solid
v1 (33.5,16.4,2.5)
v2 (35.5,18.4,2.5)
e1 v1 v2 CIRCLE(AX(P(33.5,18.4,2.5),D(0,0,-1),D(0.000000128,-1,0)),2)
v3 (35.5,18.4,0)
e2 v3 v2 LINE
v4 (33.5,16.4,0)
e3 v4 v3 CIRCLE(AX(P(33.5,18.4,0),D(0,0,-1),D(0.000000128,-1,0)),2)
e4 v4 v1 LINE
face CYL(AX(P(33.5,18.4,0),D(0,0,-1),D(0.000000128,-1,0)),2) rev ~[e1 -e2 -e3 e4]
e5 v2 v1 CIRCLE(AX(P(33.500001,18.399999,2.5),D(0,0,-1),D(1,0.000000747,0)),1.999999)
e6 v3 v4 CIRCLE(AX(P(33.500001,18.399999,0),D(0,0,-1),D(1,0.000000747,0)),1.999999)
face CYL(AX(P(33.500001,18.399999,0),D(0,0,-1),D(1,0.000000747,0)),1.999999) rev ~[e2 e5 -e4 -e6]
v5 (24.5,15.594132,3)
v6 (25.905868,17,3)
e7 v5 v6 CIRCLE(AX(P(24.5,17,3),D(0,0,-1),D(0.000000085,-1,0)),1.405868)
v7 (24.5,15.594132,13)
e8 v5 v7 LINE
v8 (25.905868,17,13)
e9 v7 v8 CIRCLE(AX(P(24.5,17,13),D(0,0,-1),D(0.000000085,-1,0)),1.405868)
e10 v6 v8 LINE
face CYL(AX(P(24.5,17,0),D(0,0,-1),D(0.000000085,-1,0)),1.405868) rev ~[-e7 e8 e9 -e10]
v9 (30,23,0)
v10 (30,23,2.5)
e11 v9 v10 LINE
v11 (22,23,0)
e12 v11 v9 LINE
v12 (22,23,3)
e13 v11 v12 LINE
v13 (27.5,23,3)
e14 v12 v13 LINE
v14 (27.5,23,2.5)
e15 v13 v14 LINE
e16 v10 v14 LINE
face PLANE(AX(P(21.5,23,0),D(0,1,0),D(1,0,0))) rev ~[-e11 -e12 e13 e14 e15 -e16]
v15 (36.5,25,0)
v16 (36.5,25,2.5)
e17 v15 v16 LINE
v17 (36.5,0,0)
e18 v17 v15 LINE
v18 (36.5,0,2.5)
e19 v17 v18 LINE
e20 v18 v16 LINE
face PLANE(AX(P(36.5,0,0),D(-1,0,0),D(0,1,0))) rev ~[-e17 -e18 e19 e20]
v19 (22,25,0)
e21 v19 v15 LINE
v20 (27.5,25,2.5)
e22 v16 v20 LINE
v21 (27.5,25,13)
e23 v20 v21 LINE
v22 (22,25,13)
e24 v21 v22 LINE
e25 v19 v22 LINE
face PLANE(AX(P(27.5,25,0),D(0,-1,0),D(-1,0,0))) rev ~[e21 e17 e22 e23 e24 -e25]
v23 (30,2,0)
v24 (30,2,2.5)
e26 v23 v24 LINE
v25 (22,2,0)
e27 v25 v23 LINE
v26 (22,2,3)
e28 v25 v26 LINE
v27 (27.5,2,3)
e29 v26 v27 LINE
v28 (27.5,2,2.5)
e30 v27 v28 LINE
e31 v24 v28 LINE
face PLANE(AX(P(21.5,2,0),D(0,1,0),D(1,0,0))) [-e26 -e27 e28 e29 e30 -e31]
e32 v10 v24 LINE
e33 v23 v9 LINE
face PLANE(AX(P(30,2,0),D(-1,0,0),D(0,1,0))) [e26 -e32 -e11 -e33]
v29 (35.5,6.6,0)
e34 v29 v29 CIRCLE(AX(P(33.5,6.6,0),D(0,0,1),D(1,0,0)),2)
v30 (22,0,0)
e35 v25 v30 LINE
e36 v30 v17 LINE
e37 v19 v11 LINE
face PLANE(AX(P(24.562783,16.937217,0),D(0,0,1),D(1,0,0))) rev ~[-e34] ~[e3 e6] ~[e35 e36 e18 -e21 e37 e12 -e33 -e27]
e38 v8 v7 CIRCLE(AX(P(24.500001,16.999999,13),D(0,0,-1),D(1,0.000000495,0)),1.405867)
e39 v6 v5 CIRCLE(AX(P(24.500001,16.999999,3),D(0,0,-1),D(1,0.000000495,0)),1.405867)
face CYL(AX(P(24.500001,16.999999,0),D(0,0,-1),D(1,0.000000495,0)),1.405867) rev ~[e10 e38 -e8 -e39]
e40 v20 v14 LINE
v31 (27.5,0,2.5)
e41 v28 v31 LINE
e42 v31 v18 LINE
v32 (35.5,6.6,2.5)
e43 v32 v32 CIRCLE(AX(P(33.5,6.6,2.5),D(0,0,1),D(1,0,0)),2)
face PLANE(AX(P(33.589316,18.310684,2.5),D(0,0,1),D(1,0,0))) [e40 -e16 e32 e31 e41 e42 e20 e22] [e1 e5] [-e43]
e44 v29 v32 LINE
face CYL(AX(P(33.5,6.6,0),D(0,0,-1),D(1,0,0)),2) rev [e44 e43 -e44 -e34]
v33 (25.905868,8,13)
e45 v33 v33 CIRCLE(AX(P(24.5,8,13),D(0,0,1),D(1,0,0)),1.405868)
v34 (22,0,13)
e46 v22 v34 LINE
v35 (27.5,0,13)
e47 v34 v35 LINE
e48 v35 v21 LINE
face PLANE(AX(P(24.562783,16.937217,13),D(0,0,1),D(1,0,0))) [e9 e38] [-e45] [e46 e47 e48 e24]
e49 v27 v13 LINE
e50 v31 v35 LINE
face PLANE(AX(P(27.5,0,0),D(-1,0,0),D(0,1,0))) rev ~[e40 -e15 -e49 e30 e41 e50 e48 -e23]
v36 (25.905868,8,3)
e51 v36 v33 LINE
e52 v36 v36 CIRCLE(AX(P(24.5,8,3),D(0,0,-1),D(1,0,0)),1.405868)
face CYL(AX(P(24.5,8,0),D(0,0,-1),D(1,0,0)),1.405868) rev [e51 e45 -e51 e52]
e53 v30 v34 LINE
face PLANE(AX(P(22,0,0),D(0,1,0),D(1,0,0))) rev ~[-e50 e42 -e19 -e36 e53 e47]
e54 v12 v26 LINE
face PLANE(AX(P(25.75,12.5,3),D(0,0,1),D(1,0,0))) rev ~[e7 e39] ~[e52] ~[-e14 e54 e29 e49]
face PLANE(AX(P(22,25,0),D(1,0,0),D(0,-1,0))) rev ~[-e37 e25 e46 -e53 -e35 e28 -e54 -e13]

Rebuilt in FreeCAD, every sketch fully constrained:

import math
import FreeCAD as App
import Part
import Sketcher


def add_polygon(sketch, points):
    """Adds a closed chain of lines whose ends are joined by coincident constraints."""
    first, n = sketch.GeometryCount, len(points)
    for a, b in zip(points, points[1:] + points[:1]):
        sketch.addGeometry(Part.LineSegment(App.Vector(*a, 0), App.Vector(*b, 0)), False)
    for i in range(n):
        sketch.addConstraint(Sketcher.Constraint("Coincident", first + i, 2, first + (i + 1) % n, 1))

doc = App.newDocument("Part")
body = doc.addObject("PartDesign::Body", "Body")

# Sketch on XY plane
sketch1 = doc.addObject("Sketcher::SketchObject", "Sketch")
body.addObject(sketch1)
sketch1.AttachmentSupport = (doc.XY_Plane, [""])
sketch1.MapMode = "FlatFace"
add_polygon(sketch1, [(26, 0), (36.5, 0), (36.5, 25), (26, 25)])  # lines 0-3
sketch1.addGeometry(Part.Circle(App.Vector(33.5, 6.6, 0), App.Vector(0, 0, 1), 2), False)  # 4
sketch1.addGeometry(Part.ArcOfCircle(Part.Circle(App.Vector(33.5, 18.4, 0), App.Vector(0, 0, 1), 2), math.radians(0), math.radians(270)), False)  # 5
sketch1.addGeometry(Part.ArcOfCircle(Part.Circle(App.Vector(33.5, 18.4, 0), App.Vector(0, 0, 1), 2), math.radians(-90), math.radians(0)), False)  # 6
sketch1.addConstraint(Sketcher.Constraint("Tangent", 5, 1, 6, 2))
sketch1.addConstraint(Sketcher.Constraint("Coincident", 6, 1, 5, 2))
sketch1.addConstraint(Sketcher.Constraint("Horizontal", 0))
sketch1.addConstraint(Sketcher.Constraint("Vertical", 1))
sketch1.addConstraint(Sketcher.Constraint("Horizontal", 2))
sketch1.addConstraint(Sketcher.Constraint("Vertical", 3))
sketch1.addConstraint(Sketcher.Constraint("Equal", 4, 5))
sketch1.addConstraint(Sketcher.Constraint("PointOnObject", 0, 2, -1))
sketch1.addConstraint(Sketcher.Constraint("Horizontal", 6, 3, 5, 1))
sketch1.addConstraint(Sketcher.Constraint("Vertical", 4, 3, 5, 3))
sketch1.addConstraint(Sketcher.Constraint("Vertical", 5, 3, 6, 1))
sketch1.addConstraint(Sketcher.Constraint("Diameter", 4, 4.0))
sketch1.addConstraint(Sketcher.Constraint("DistanceY", 1, 1, 1, 2, 25.0))
sketch1.addConstraint(Sketcher.Constraint("DistanceX", 0, 1, 0, 2, 10.5))
sketch1.addConstraint(Sketcher.Constraint("DistanceX", -1, 1, 2, 2, 26.0))
sketch1.addConstraint(Sketcher.Constraint("DistanceX", 4, 3, 0, 2, 3.0))
sketch1.addConstraint(Sketcher.Constraint("DistanceY", -1, 1, 4, 3, 6.6))
sketch1.addConstraint(Sketcher.Constraint("DistanceY", -1, 1, 5, 3, 18.4))
pad1 = doc.addObject("PartDesign::Pad", "Pad")
body.addObject(pad1)
pad1.Profile = sketch1
pad1.Length = 2.5

# Sketch on XY plane
sketch2 = doc.addObject("Sketcher::SketchObject", "Sketch001")
body.addObject(sketch2)
sketch2.AttachmentSupport = (doc.XY_Plane, [""])
sketch2.MapMode = "FlatFace"
add_polygon(sketch2, [(22, 0), (27.5, 0), (27.5, 25), (22, 25)])  # lines 0-3
sketch2.addGeometry(Part.Circle(App.Vector(24.5, 8, 0), App.Vector(0, 0, 1), 1.4), False)  # 4
sketch2.addGeometry(Part.ArcOfCircle(Part.Circle(App.Vector(24.5, 17, 0), App.Vector(0, 0, 1), 1.4), math.radians(0), math.radians(270)), False)  # 5
sketch2.addGeometry(Part.ArcOfCircle(Part.Circle(App.Vector(24.5, 17, 0), App.Vector(0, 0, 1), 1.4), math.radians(-90), math.radians(0)), False)  # 6
sketch2.addConstraint(Sketcher.Constraint("Tangent", 5, 1, 6, 2))
sketch2.addConstraint(Sketcher.Constraint("Coincident", 6, 1, 5, 2))
sketch2.addConstraint(Sketcher.Constraint("Horizontal", 0))
sketch2.addConstraint(Sketcher.Constraint("Vertical", 1))
sketch2.addConstraint(Sketcher.Constraint("Horizontal", 2))
sketch2.addConstraint(Sketcher.Constraint("Vertical", 3))
sketch2.addConstraint(Sketcher.Constraint("Equal", 4, 5))
sketch2.addConstraint(Sketcher.Constraint("PointOnObject", 0, 2, -1))
sketch2.addConstraint(Sketcher.Constraint("Horizontal", 6, 3, 5, 1))
sketch2.addConstraint(Sketcher.Constraint("Vertical", 4, 3, 5, 3))
sketch2.addConstraint(Sketcher.Constraint("Vertical", 5, 3, 6, 1))
sketch2.addConstraint(Sketcher.Constraint("DistanceY", 1, 1, 1, 2, 25.0))
sketch2.addConstraint(Sketcher.Constraint("DistanceX", 0, 1, 0, 2, 5.5))
sketch2.addConstraint(Sketcher.Constraint("DistanceY", -1, 1, 4, 3, 8.0))
sketch2.addConstraint(Sketcher.Constraint("DistanceY", -1, 1, 5, 3, 17.0))
sketch2.addConstraint(Sketcher.Constraint("DistanceX", -1, 1, 2, 2, 22.0))
sketch2.addConstraint(Sketcher.Constraint("DistanceX", 4, 3, 0, 2, 3.0))
sketch2.addConstraint(Sketcher.Constraint("Radius", 5, 1.405868))
pad2 = doc.addObject("PartDesign::Pad", "Pad001")
body.addObject(pad2)
pad2.Profile = sketch2
pad2.Length = 13

# Sketch on XY plane
sketch3 = doc.addObject("Sketcher::SketchObject", "Sketch002")
body.addObject(sketch3)
sketch3.AttachmentSupport = (doc.XY_Plane, [""])
sketch3.MapMode = "FlatFace"
add_polygon(sketch3, [(22, 23), (22, 2), (30, 2), (30, 23)])  # lines 0-3
sketch3.addConstraint(Sketcher.Constraint("Vertical", 0))
sketch3.addConstraint(Sketcher.Constraint("Horizontal", 1))
sketch3.addConstraint(Sketcher.Constraint("Vertical", 2))
sketch3.addConstraint(Sketcher.Constraint("Horizontal", 3))
sketch3.addConstraint(Sketcher.Constraint("DistanceY", 0, 2, 0, 1, 21.0))
sketch3.addConstraint(Sketcher.Constraint("DistanceX", 1, 1, 1, 2, 8.5))
sketch3.addConstraint(Sketcher.Constraint("DistanceY", -1, 1, 0, 2, 2.0))
sketch3.addConstraint(Sketcher.Constraint("DistanceX", -1, 1, 1, 2, 30.0))
pocket1 = doc.addObject("PartDesign::Pocket", "Pocket")
body.addObject(pocket1)
pocket1.Profile = sketch3
pocket1.Length = 3
pocket1.Reversed = True

doc.recompute()
